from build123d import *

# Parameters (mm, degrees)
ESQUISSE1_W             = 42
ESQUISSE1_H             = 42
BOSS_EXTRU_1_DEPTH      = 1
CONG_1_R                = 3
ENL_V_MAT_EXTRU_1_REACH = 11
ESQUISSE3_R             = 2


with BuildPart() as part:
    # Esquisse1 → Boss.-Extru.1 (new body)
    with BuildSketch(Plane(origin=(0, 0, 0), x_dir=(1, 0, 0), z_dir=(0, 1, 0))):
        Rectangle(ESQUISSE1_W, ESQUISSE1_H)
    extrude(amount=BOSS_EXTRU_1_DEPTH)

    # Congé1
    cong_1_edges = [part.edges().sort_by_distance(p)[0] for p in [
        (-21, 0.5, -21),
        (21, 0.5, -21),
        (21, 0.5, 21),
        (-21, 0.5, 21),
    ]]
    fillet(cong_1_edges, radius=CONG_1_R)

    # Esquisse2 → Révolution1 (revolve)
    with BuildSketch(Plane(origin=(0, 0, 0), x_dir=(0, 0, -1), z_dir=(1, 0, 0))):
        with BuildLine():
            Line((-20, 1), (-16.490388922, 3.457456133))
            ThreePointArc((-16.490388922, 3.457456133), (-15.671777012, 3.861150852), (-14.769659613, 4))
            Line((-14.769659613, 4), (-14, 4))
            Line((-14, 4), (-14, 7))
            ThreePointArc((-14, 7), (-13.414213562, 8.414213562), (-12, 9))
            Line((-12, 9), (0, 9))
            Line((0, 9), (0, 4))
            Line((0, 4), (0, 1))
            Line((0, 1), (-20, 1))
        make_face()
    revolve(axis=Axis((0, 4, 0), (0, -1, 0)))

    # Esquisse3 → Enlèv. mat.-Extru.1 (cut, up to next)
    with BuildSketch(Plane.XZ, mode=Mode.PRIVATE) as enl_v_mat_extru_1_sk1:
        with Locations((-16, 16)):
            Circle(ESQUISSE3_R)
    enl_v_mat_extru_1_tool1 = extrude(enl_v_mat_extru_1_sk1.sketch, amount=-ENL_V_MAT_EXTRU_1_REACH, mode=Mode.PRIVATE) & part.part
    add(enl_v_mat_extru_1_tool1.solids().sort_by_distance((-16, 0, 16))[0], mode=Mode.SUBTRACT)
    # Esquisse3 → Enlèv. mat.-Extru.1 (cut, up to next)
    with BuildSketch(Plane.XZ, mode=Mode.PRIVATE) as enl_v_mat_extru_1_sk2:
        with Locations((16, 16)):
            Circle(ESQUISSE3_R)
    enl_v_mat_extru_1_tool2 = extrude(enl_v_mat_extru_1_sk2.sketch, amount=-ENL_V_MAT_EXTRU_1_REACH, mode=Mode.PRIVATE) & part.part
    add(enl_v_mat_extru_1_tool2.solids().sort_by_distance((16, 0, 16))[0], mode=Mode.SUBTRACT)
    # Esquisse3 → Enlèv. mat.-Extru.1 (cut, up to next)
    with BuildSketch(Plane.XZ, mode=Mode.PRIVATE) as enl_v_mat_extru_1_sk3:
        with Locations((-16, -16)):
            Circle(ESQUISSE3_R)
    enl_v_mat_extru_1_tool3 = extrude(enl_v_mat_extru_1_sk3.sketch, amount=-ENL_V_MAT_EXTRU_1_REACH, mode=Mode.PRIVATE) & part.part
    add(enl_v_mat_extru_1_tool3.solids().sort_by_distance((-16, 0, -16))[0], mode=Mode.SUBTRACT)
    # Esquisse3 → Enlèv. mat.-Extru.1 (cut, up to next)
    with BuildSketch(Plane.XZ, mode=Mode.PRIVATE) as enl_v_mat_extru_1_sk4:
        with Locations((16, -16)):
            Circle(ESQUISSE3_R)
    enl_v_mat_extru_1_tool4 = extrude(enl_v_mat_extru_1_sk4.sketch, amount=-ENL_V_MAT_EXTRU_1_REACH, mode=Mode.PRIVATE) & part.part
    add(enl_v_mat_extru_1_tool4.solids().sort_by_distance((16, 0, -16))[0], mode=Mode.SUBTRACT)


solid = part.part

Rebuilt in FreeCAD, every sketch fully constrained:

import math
import FreeCAD as App
import Part
import Sketcher
from FreeCAD import Vector
Q = App.Units.Quantity


def edges_at(feature, points):
    """Names of the edges that pass closest to the given points."""
    edges = feature.Shape.Edges
    near = lambda p: min(range(len(edges)), key=lambda i: edges[i].distToShape(Part.Vertex(*p))[0])
    return sorted({f"Edge{near(p) + 1}" for p in points})

doc = App.newDocument("Part")
params = doc.addObject("Spreadsheet::Sheet", "Params")
for row, (alias, value) in enumerate([
    ("sketch1_width", "42 mm"),
    ("pad1_length", "1 mm"),
    ("fillet_radius", "3 mm"),
    ("sketch2_radius", "2 mm"),
    ("sketch2_radius2", "3 mm"),
    ("sketch2_width", "8 mm"),
    ("sketch2_height", "20 mm"),
    ("sketch2_height2", "12 mm"),
    ("revolution_angle", "360 deg"),
    ("sketch3_diameter", "4 mm"),
    ("sketch4_diameter", "4 mm"),
    ("sketch5_diameter", "4 mm"),
    ("sketch6_diameter", "4 mm"),
], start=1):
    params.set(f"A{row}", alias)
    params.set(f"B{row}", "=" + value)
    params.setAlias(f"B{row}", alias)

body = doc.addObject("PartDesign::Body", "Body")

# Sketch on XZ plane
sketch1 = body.newObject("Sketcher::SketchObject", "Sketch")
sketch1.AttachmentSupport = (doc.getObject("XZ_Plane"), [""])
sketch1.MapMode = "FlatFace"
sketch1.addGeometry(Part.LineSegment(Vector(-21, -21, 0), Vector(-21, 21, 0)), False)
sketch1.addGeometry(Part.LineSegment(Vector(-21, 21, 0), Vector(21, 21, 0)), False)
sketch1.addGeometry(Part.LineSegment(Vector(21, 21, 0), Vector(21, -21, 0)), False)
sketch1.addGeometry(Part.LineSegment(Vector(21, -21, 0), Vector(-21, -21, 0)), False)
sketch1.addConstraint(Sketcher.Constraint("Coincident", 0, 2, 1, 1))
sketch1.addConstraint(Sketcher.Constraint("Coincident", 1, 2, 2, 1))
sketch1.addConstraint(Sketcher.Constraint("Coincident", 2, 2, 3, 1))
sketch1.addConstraint(Sketcher.Constraint("Coincident", 3, 2, 0, 1))
sketch1.addConstraint(Sketcher.Constraint("Vertical", 0))
sketch1.addConstraint(Sketcher.Constraint("Horizontal", 1))
sketch1.addConstraint(Sketcher.Constraint("Vertical", 2))
sketch1.addConstraint(Sketcher.Constraint("Horizontal", 3))
sketch1.addConstraint(Sketcher.Constraint("Symmetric", 0, 2, 2, 2, -1, 1))
sketch1.addConstraint(Sketcher.Constraint("Equal", 3, 0))
sketch1.addConstraint(Sketcher.Constraint("DistanceX", 1, 1, 1, 2, Q("42 mm")))
sketch1.setExpression("Constraints[10]", "Params.sketch1_width")
pad1 = body.newObject("PartDesign::Pad", "Pad")
pad1.Profile = sketch1
pad1.setExpression("Length", "Params.pad1_length")
pad1.Reversed = True
doc.recompute()

fillet = body.newObject("PartDesign::Fillet", "Fillet")
fillet.Base = (pad1, edges_at(pad1, [
    (-21, 0.5, -21),
    (21, 0.5, -21),
    (21, 0.5, 21),
    (-21, 0.5, 21),
]))
fillet.setExpression("Radius", "Params.fillet_radius")

# Sketch on YZ plane
sketch2 = body.newObject("Sketcher::SketchObject", "Sketch001")
sketch2.AttachmentSupport = (doc.getObject("YZ_Plane"), [""])
sketch2.MapMode = "FlatFace"
sketch2.addGeometry(Part.LineSegment(Vector(3.457456, 16.490389, 0), Vector(1, 20, 0)), False)
sketch2.addGeometry(Part.LineSegment(Vector(1, 20, 0), Vector(1, 0, 0)), False)
sketch2.addGeometry(Part.LineSegment(Vector(1, 0, 0), Vector(9, 0, 0)), False)
sketch2.addGeometry(Part.LineSegment(Vector(9, 0, 0), Vector(9, 12, 0)), False)
sketch2.addGeometry(Part.ArcOfCircle(Part.Circle(Vector(7, 12, 0), Vector(0, 0, 1), 2), math.radians(0), math.radians(90)), False)
sketch2.addGeometry(Part.LineSegment(Vector(7, 14, 0), Vector(4, 14, 0)), False)
sketch2.addGeometry(Part.LineSegment(Vector(4, 14, 0), Vector(4, 14.76966, 0)), False)
sketch2.addGeometry(Part.ArcOfCircle(Part.Circle(Vector(1, 14.76966, 0), Vector(0, 0, 1), 3), math.radians(0), math.radians(35)), False)
sketch2.addConstraint(Sketcher.Constraint("Coincident", 0, 2, 1, 1))
sketch2.addConstraint(Sketcher.Constraint("Coincident", 1, 2, 2, 1))
sketch2.addConstraint(Sketcher.Constraint("Coincident", 2, 2, 3, 1))
sketch2.addConstraint(Sketcher.Constraint("Tangent", 3, 2, 4, 1))
sketch2.addConstraint(Sketcher.Constraint("Tangent", 4, 2, 5, 1))
sketch2.addConstraint(Sketcher.Constraint("Coincident", 5, 2, 6, 1))
sketch2.addConstraint(Sketcher.Constraint("Tangent", 6, 2, 7, 1))
sketch2.addConstraint(Sketcher.Constraint("Tangent", 7, 2, 0, 1))
sketch2.addConstraint(Sketcher.Constraint("Vertical", 1))
sketch2.addConstraint(Sketcher.Constraint("Horizontal", 2))
sketch2.addConstraint(Sketcher.Constraint("Vertical", 3))
sketch2.addConstraint(Sketcher.Constraint("Horizontal", 5))
sketch2.addConstraint(Sketcher.Constraint("Vertical", 6))
sketch2.addConstraint(Sketcher.Constraint("PointOnObject", 1, 2, -1))
sketch2.addConstraint(Sketcher.Constraint("Vertical", 7, 3, 0, 2))
sketch2.addConstraint(Sketcher.Constraint("Radius", 4, Q("2 mm")))
sketch2.addConstraint(Sketcher.Constraint("Radius", 7, Q("3 mm")))
sketch2.addConstraint(Sketcher.Constraint("DistanceX", 2, 1, 2, 2, Q("8 mm")))
sketch2.addConstraint(Sketcher.Constraint("DistanceY", 1, 2, 1, 1, Q("20 mm")))
sketch2.addConstraint(Sketcher.Constraint("DistanceY", 3, 1, 3, 2, Q("12 mm")))
sketch2.addConstraint(Sketcher.Constraint("Angle", 0, Q("125 deg")))
sketch2.addConstraint(Sketcher.Constraint("DistanceX", -1, 1, 4, 3, Q("7 mm")))
sketch2.setExpression("Constraints[15]", "Params.sketch2_radius")
sketch2.setExpression("Constraints[16]", "Params.sketch2_radius2")
sketch2.setExpression("Constraints[17]", "Params.sketch2_width")
sketch2.setExpression("Constraints[18]", "Params.sketch2_height")
sketch2.setExpression("Constraints[19]", "Params.sketch2_height2")
revolution = body.newObject("PartDesign::Revolution", "Revolution")
revolution.Profile = sketch2
revolution.ReferenceAxis = (sketch2, ["H_Axis"])
revolution.setExpression("Angle", "Params.revolution_angle")

# Sketch on XZ plane
sketch3 = body.newObject("Sketcher::SketchObject", "Sketch002")
sketch3.AttachmentSupport = (doc.getObject("XZ_Plane"), [""])
sketch3.MapMode = "FlatFace"
sketch3.addGeometry(Part.Circle(Vector(-16, 16, 0), Vector(0, 0, 1), 2), False)
sketch3.addConstraint(Sketcher.Constraint("Diameter", 0, Q("4 mm")))
sketch3.addConstraint(Sketcher.Constraint("DistanceX", 0, 3, -1, 1, Q("16 mm")))
sketch3.addConstraint(Sketcher.Constraint("DistanceY", -1, 1, 0, 3, Q("16 mm")))
sketch3.setExpression("Constraints[0]", "Params.sketch3_diameter")
pocket1 = body.newObject("PartDesign::Pocket", "Pocket")
pocket1.Profile = sketch3
pocket1.Type = "UpToFirst"

# Sketch on XZ plane
sketch4 = body.newObject("Sketcher::SketchObject", "Sketch003")
sketch4.AttachmentSupport = (doc.getObject("XZ_Plane"), [""])
sketch4.MapMode = "FlatFace"
sketch4.addGeometry(Part.Circle(Vector(16, 16, 0), Vector(0, 0, 1), 2), False)
sketch4.addConstraint(Sketcher.Constraint("Diameter", 0, Q("4 mm")))
sketch4.addConstraint(Sketcher.Constraint("DistanceX", -1, 1, 0, 3, Q("16 mm")))
sketch4.addConstraint(Sketcher.Constraint("DistanceY", -1, 1, 0, 3, Q("16 mm")))
sketch4.setExpression("Constraints[0]", "Params.sketch4_diameter")
pocket2 = body.newObject("PartDesign::Pocket", "Pocket001")
pocket2.Profile = sketch4
pocket2.Type = "UpToFirst"

# Sketch on XZ plane
sketch5 = body.newObject("Sketcher::SketchObject", "Sketch004")
sketch5.AttachmentSupport = (doc.getObject("XZ_Plane"), [""])
sketch5.MapMode = "FlatFace"
sketch5.addGeometry(Part.Circle(Vector(-16, -16, 0), Vector(0, 0, 1), 2), False)
sketch5.addConstraint(Sketcher.Constraint("Diameter", 0, Q("4 mm")))
sketch5.addConstraint(Sketcher.Constraint("DistanceX", 0, 3, -1, 1, Q("16 mm")))
sketch5.addConstraint(Sketcher.Constraint("DistanceY", 0, 3, -1, 1, Q("16 mm")))
sketch5.setExpression("Constraints[0]", "Params.sketch5_diameter")
pocket3 = body.newObject("PartDesign::Pocket", "Pocket002")
pocket3.Profile = sketch5
pocket3.Type = "UpToFirst"

# Sketch on XZ plane
sketch6 = body.newObject("Sketcher::SketchObject", "Sketch005")
sketch6.AttachmentSupport = (doc.getObject("XZ_Plane"), [""])
sketch6.MapMode = "FlatFace"
sketch6.addGeometry(Part.Circle(Vector(16, -16, 0), Vector(0, 0, 1), 2), False)
sketch6.addConstraint(Sketcher.Constraint("Diameter", 0, Q("4 mm")))
sketch6.addConstraint(Sketcher.Constraint("DistanceX", -1, 1, 0, 3, Q("16 mm")))
sketch6.addConstraint(Sketcher.Constraint("DistanceY", 0, 3, -1, 1, Q("16 mm")))
sketch6.setExpression("Constraints[0]", "Params.sketch6_diameter")
pocket4 = body.newObject("PartDesign::Pocket", "Pocket003")
pocket4.Profile = sketch6
pocket4.Type = "UpToFirst"

doc.recompute()
